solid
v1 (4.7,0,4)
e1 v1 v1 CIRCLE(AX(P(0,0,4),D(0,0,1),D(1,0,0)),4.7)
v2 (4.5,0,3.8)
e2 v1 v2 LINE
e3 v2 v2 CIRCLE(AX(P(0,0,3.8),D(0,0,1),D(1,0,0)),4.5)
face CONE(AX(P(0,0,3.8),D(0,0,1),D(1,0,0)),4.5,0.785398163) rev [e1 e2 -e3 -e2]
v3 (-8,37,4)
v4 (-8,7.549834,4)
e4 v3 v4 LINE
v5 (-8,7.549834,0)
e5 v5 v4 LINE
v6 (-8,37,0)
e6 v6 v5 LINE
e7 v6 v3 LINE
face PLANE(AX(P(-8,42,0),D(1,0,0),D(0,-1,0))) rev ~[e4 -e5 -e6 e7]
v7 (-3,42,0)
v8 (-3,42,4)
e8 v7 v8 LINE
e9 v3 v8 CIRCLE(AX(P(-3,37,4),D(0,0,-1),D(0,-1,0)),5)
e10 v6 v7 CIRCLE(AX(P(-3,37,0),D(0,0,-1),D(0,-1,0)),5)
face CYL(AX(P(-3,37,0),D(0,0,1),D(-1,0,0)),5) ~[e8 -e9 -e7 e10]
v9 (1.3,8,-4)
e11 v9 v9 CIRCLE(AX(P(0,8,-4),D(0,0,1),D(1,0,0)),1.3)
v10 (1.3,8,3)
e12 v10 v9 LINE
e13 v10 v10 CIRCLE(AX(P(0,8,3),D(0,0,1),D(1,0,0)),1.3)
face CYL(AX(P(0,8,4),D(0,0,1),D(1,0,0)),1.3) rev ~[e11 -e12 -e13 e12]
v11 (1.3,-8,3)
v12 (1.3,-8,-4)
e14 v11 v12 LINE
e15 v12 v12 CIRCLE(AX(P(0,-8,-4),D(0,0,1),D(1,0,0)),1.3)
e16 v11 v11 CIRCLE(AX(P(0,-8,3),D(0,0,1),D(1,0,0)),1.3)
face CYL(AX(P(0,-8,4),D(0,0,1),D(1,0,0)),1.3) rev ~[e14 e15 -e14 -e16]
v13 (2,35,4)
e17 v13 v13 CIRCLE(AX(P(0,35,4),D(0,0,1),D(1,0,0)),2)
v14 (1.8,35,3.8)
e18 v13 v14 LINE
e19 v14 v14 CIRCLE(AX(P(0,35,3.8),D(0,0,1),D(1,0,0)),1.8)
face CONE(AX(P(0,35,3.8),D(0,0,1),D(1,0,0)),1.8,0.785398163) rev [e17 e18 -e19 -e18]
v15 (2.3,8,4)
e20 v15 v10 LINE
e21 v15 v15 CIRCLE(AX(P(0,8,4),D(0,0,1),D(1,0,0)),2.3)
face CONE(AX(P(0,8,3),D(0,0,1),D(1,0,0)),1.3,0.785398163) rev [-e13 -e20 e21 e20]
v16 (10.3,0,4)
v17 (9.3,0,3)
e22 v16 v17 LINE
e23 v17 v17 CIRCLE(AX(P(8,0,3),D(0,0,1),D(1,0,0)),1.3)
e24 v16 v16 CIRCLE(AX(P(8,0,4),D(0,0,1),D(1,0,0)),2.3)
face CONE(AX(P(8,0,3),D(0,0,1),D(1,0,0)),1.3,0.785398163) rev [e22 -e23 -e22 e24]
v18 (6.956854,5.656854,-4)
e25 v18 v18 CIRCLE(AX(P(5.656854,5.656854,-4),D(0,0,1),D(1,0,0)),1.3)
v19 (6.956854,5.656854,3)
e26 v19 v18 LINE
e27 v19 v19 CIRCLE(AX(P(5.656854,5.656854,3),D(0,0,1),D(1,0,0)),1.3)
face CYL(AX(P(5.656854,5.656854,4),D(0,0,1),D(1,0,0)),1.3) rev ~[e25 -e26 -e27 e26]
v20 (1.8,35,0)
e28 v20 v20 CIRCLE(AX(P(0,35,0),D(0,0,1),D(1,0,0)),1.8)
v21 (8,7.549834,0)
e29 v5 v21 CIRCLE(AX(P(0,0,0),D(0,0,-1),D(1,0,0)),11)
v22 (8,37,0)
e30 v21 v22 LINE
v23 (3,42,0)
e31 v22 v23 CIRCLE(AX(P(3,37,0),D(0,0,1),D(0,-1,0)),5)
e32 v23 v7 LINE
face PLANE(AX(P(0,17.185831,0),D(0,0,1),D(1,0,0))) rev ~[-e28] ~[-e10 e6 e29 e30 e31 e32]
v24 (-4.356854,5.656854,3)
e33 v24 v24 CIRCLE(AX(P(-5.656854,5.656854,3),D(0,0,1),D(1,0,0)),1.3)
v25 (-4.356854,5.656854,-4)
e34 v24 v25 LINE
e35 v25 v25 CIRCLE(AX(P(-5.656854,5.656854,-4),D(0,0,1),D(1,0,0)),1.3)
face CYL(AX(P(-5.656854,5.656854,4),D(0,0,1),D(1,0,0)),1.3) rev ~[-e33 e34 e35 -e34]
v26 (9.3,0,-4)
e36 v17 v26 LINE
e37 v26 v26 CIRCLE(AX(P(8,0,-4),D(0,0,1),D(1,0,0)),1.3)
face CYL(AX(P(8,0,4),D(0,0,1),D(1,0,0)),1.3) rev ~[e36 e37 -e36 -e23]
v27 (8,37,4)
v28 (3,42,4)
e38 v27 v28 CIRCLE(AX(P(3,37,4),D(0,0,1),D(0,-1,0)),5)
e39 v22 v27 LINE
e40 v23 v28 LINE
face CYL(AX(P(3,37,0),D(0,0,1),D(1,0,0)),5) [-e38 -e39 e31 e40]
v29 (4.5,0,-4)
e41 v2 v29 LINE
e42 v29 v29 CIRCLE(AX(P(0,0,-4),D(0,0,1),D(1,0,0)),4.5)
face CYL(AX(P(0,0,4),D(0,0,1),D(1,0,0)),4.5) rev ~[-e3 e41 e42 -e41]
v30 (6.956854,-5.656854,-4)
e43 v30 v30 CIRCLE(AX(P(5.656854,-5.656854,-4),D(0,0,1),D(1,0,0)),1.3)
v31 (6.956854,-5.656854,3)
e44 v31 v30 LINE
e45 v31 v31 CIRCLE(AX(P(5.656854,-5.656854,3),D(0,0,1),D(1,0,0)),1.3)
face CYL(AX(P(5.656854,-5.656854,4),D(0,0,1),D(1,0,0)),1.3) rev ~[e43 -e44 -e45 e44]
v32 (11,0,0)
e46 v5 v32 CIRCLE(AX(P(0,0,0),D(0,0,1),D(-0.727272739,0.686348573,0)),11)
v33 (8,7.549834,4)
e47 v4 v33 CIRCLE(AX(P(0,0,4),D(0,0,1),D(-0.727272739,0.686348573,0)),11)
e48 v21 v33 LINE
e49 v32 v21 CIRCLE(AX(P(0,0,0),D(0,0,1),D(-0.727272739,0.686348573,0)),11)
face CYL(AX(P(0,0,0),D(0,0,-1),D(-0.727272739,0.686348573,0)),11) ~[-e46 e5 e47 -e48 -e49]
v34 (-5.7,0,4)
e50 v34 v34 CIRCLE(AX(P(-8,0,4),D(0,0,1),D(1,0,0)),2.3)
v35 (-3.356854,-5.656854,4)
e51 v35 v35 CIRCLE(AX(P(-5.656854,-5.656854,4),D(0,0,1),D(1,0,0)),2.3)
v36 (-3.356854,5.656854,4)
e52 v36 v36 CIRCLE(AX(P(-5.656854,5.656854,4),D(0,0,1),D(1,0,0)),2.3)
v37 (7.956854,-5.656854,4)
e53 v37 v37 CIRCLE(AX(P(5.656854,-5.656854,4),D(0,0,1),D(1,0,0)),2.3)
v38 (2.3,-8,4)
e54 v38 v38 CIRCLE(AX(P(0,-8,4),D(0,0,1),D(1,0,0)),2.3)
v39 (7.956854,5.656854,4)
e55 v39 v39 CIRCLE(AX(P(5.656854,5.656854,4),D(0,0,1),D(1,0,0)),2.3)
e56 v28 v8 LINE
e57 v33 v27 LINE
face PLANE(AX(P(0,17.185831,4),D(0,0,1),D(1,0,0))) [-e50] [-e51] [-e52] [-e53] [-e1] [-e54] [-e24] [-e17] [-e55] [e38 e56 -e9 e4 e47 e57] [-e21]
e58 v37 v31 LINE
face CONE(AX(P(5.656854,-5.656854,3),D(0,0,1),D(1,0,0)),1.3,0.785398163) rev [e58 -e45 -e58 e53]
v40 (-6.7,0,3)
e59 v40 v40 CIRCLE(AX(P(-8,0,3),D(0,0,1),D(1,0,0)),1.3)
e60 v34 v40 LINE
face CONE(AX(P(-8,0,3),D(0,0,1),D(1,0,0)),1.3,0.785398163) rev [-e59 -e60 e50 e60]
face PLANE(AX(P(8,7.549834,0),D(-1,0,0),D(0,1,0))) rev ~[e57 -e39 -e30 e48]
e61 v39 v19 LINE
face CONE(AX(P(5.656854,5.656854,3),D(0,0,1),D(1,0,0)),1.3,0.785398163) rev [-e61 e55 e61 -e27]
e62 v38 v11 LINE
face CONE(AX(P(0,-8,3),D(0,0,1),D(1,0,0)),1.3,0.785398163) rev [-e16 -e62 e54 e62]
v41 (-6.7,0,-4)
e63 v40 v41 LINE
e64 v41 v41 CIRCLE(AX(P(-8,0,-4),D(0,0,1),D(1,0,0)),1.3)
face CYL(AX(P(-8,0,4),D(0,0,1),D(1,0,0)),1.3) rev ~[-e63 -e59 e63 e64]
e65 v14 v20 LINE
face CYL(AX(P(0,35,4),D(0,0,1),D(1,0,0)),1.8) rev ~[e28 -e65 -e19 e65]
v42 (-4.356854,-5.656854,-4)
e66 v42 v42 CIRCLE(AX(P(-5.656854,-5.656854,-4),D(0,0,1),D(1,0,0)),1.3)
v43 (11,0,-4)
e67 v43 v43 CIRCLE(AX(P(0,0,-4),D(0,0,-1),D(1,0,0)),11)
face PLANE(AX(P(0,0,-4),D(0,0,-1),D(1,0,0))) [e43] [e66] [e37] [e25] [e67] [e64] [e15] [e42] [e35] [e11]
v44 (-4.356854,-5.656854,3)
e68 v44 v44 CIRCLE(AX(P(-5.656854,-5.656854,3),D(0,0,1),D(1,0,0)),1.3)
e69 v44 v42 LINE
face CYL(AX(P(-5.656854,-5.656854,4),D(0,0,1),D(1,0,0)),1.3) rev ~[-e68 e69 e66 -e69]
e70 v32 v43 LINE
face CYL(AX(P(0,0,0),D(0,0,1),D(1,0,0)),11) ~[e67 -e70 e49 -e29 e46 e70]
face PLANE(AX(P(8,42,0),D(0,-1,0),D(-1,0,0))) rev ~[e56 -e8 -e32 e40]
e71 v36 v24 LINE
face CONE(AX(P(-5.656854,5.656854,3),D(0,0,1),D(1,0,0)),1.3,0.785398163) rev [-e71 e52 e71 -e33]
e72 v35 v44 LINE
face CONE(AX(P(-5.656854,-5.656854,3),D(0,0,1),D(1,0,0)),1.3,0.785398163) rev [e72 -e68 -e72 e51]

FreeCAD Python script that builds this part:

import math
import FreeCAD as App
import Part
import Sketcher
from FreeCAD import Vector


def edges_at(feature, points):
    """Names of the edges that pass closest to the given points."""
    edges = feature.Shape.Edges
    near = lambda p: min(range(len(edges)), key=lambda i: edges[i].distToShape(Part.Vertex(*p))[0])
    return sorted({f"Edge{near(p) + 1}" for p in points})

doc = App.newDocument("Part")
body = doc.addObject("PartDesign::Body", "Body")

# Sketch on XY plane
sketch1 = body.newObject("Sketcher::SketchObject", "Sketch")
sketch1.AttachmentSupport = (doc.getObject("XY_Plane"), [""])
sketch1.MapMode = "FlatFace"
sketch1.addGeometry([
    Part.ArcOfCircle(Part.Circle(Vector(0, 0, 0), Vector(0, 0, 1), 11), math.radians(137), math.radians(403)),
    Part.LineSegment(Vector(8, 8, 0), Vector(8, 42, 0)),
    Part.LineSegment(Vector(8, 42, 0), Vector(-8, 42, 0)),
    Part.LineSegment(Vector(-8, 42, 0), Vector(-8, 8, 0)),
], False)
sketch1.addConstraint([
    Sketcher.Constraint("Coincident", 0, 2, 1, 1),
    Sketcher.Constraint("Coincident", 1, 2, 2, 1),
    Sketcher.Constraint("Coincident", 2, 2, 3, 1),
    Sketcher.Constraint("Coincident", 3, 2, 0, 1),
    Sketcher.Constraint("Vertical", 1),
    Sketcher.Constraint("Horizontal", 2),
    Sketcher.Constraint("Vertical", 3),
    Sketcher.Constraint("Coincident", 0, 3, -1, 1),
    Sketcher.Constraint("Horizontal", 0, 2, 3, 2),
    Sketcher.Constraint("Radius", 0, 11.0),
    Sketcher.Constraint("DistanceX", 2, 2, 2, 1, 16.0),
    Sketcher.Constraint("DistanceY", -1, 1, 1, 2, 42.0),
])
pad1 = body.newObject("PartDesign::Pad", "Pad")
pad1.Profile = sketch1
pad1.Length = 4

# Sketch on XY plane
sketch2 = body.newObject("Sketcher::SketchObject", "Sketch001")
sketch2.AttachmentSupport = (doc.getObject("XY_Plane"), [""])
sketch2.MapMode = "FlatFace"
sketch2.AttachmentOffset = App.Placement(Vector(0, 0, 4), App.Rotation())
sketch2.addGeometry(Part.Circle(Vector(0, 35, 0), Vector(0, 0, 1), 1.8), False)
sketch2.addConstraint([
    Sketcher.Constraint("PointOnObject", 0, 3, -2),
    Sketcher.Constraint("Diameter", 0, 3.6),
    Sketcher.Constraint("DistanceY", -1, 1, 0, 3, 35.0),
])
pocket1 = body.newObject("PartDesign::Pocket", "Pocket")
pocket1.Profile = sketch2
pocket1.Length = 5
doc.recompute()

fillet = body.newObject("PartDesign::Fillet", "Fillet")
fillet.Base = (pocket1, edges_at(pocket1, [(-8, 42, 2), (8, 42, 2)]))
fillet.Radius = 5

# Sketch on XY plane
sketch3 = body.newObject("Sketcher::SketchObject", "Sketch002")
sketch3.AttachmentSupport = (doc.getObject("XY_Plane"), [""])
sketch3.MapMode = "FlatFace"
sketch3.addGeometry(Part.Circle(Vector(0, 0, 0), Vector(0, 0, 1), 11), False)
sketch3.addConstraint([
    Sketcher.Constraint("Coincident", 0, 3, -1, 1),
    Sketcher.Constraint("Diameter", 0, 22.0),
])
pad2 = body.newObject("PartDesign::Pad", "Pad001")
pad2.Profile = sketch3
pad2.Length = 4
pad2.Reversed = True

# Sketch on XY plane
sketch4 = body.newObject("Sketcher::SketchObject", "Sketch003")
sketch4.AttachmentSupport = (doc.getObject("XY_Plane"), [""])
sketch4.MapMode = "FlatFace"
sketch4.AttachmentOffset = App.Placement(Vector(0, 0, 4), App.Rotation())
sketch4.addGeometry([
    Part.Circle(Vector(0, 0, 0), Vector(0, 0, 1), 4.5),  # 0
    Part.Circle(Vector(0, 8, 0), Vector(0, 0, 1), 1.3),  # 1
    Part.Circle(Vector(5.7, 5.7, 0), Vector(0, 0, 1), 1.3),  # 2
    Part.Circle(Vector(8, 0, 0), Vector(0, 0, 1), 1.3),  # 3
    Part.Circle(Vector(5.7, -5.7, 0), Vector(0, 0, 1), 1.3),  # 4
    Part.Circle(Vector(0, -8, 0), Vector(0, 0, 1), 1.3),  # 5
    Part.Circle(Vector(-5.7, -5.7, 0), Vector(0, 0, 1), 1.3),  # 6
    Part.Circle(Vector(-8, 0, 0), Vector(0, 0, 1), 1.3),  # 7
    Part.Circle(Vector(-5.7, 5.7, 0), Vector(0, 0, 1), 1.3),  # 8
], False)
sketch4.addConstraint([
    Sketcher.Constraint("Coincident", 0, 3, -1, 1),
    Sketcher.Constraint("Equal", 1, 2),
    Sketcher.Constraint("Equal", 2, 3),
    Sketcher.Constraint("Equal", 3, 4),
    Sketcher.Constraint("Equal", 4, 5),
    Sketcher.Constraint("Equal", 5, 6),
    Sketcher.Constraint("Equal", 6, 7),
    Sketcher.Constraint("Equal", 7, 8),
    Sketcher.Constraint("Symmetric", 1, 3, 5, 3, -1, 1),
    Sketcher.Constraint("Symmetric", 2, 3, 6, 3, -1, 1),
    Sketcher.Constraint("Symmetric", 3, 3, 7, 3, -1, 1),
    Sketcher.Constraint("Symmetric", 4, 3, 8, 3, -1, 1),
    Sketcher.Constraint("Symmetric", 4, 3, 6, 3, -2),
    Sketcher.Constraint("PointOnObject", 1, 3, -2),
    Sketcher.Constraint("PointOnObject", 3, 3, -1),
    Sketcher.Constraint("Diameter", 0, 9.0),
    Sketcher.Constraint("Diameter", 1, 2.6),
    Sketcher.Constraint("DistanceY", -1, 1, 1, 3, 8.0),
    Sketcher.Constraint("DistanceX", -1, 1, 3, 3, 8.0),
    Sketcher.Constraint("DistanceX", -1, 1, 2, 3, 5.656854),
    Sketcher.Constraint("DistanceY", -1, 1, 2, 3, 5.656854),
])
pocket2 = body.newObject("PartDesign::Pocket", "Pocket001")
pocket2.Profile = sketch4
pocket2.Length = 10
doc.recompute()

chamfer = body.newObject("PartDesign::Chamfer", "Chamfer")
chamfer.Base = (pocket2, edges_at(pocket2, [
    (-6.957, 5.657, 4),
    (-1.3, 8, 4),
    (4.357, 5.657, 4),
    (6.7, 0, 4),
    (4.357, -5.657, 4),
    (-1.3, -8, 4),
    (-6.957, -5.657, 4),
    (-9.3, 0, 4),
]))
chamfer.Size = 1
doc.recompute()

chamfer2 = body.newObject("PartDesign::Chamfer", "Chamfer001")
chamfer2.Base = (chamfer, edges_at(chamfer, [(-1.8, 35, 4), (-4.5, 0, 4)]))
chamfer2.Size = 0.2

doc.recompute()
